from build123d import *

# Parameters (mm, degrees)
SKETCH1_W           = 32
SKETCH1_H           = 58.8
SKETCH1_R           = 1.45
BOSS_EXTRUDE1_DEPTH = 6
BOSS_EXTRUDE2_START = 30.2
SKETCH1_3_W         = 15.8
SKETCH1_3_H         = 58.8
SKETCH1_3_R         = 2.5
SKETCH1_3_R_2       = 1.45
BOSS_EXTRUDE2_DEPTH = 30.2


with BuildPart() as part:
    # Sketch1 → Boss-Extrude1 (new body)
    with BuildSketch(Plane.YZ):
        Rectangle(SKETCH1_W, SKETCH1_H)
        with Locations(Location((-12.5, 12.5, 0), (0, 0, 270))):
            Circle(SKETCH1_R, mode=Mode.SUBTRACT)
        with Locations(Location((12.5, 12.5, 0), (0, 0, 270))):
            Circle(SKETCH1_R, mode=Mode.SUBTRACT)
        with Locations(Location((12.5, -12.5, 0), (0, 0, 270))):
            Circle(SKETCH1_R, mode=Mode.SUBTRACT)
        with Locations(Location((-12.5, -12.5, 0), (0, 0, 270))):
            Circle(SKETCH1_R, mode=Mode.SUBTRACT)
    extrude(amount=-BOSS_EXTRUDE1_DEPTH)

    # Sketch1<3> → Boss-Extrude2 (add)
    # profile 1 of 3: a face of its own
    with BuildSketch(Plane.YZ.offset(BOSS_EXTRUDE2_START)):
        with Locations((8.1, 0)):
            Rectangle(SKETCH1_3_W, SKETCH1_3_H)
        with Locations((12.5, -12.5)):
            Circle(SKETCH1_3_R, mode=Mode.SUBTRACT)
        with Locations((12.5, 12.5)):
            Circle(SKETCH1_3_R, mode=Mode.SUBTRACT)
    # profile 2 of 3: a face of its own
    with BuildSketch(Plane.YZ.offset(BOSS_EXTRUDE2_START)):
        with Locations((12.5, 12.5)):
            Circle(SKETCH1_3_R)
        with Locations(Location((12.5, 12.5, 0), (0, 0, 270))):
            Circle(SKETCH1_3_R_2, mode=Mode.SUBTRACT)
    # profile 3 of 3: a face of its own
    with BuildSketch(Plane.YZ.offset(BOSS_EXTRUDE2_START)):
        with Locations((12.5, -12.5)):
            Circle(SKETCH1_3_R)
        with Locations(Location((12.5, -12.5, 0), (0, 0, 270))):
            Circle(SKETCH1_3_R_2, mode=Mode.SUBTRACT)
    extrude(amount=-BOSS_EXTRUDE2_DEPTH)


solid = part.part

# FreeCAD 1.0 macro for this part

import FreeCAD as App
import Part
import Sketcher

V = App.Vector
Q = App.Units.Quantity


def add_polygon(sketch, points):
    """Adds a closed chain of lines whose ends are joined by coincident constraints."""
    first, n = sketch.GeometryCount, len(points)
    for a, b in zip(points, points[1:] + points[:1]):
        sketch.addGeometry(Part.LineSegment(App.Vector(*a, 0), App.Vector(*b, 0)), False)
    for i in range(n):
        sketch.addConstraint(Sketcher.Constraint("Coincident", first + i, 2, first + (i + 1) % n, 1))

doc = App.newDocument("Part")
body = doc.addObject("PartDesign::Body", "Body")

# Sketch on YZ plane
sketch1 = body.newObject("Sketcher::SketchObject", "Sketch")
sketch1.AttachmentSupport = (doc.getObject("YZ_Plane"), [""])
sketch1.MapMode = "FlatFace"
add_polygon(sketch1, [(-16, 29.4), (-16, -29.4), (16, -29.4), (16, 29.4)])  # lines 0-3
sketch1.addGeometry(Part.Circle(V(-12.5, -12.5, 0), V(0, 0, 1), 1.4), False)  # 4
sketch1.addGeometry(Part.Circle(V(12.5, -12.5, 0), V(0, 0, 1), 1.4), False)  # 5
sketch1.addGeometry(Part.Circle(V(-12.5, 12.5, 0), V(0, 0, 1), 1.4), False)  # 6
sketch1.addGeometry(Part.Circle(V(12.5, 12.5, 0), V(0, 0, 1), 1.4), False)  # 7
sketch1.addConstraint([
    Sketcher.Constraint("Vertical", 0),
    Sketcher.Constraint("Horizontal", 1),
    Sketcher.Constraint("Vertical", 2),
    Sketcher.Constraint("Horizontal", 3),
    Sketcher.Constraint("Equal", 4, 5),
    Sketcher.Constraint("Equal", 5, 6),
    Sketcher.Constraint("Equal", 6, 7),
    Sketcher.Constraint("Symmetric", 5, 3, 6, 3, -1, 1),
    Sketcher.Constraint("Symmetric", 4, 3, 7, 3, -1, 1),
    Sketcher.Constraint("Symmetric", 0, 2, 2, 2, -1, 1),
    Sketcher.Constraint("Symmetric", 4, 3, 5, 3, -2),
    Sketcher.Constraint("Diameter", 4, Q("2.9 mm")),
    Sketcher.Constraint("DistanceX", 1, 1, 1, 2, Q("32 mm")),
    Sketcher.Constraint("DistanceY", 0, 2, 0, 1, Q("58.8 mm")),
    Sketcher.Constraint("DistanceX", 4, 3, 5, 3, Q("25 mm")),
    Sketcher.Constraint("DistanceY", 4, 3, 6, 3, Q("25 mm")),
])
pad1 = body.newObject("PartDesign::Pad", "Pad")
pad1.Profile = sketch1
pad1.Length = 6
pad1.Reversed = True

# Sketch on YZ plane
sketch2 = body.newObject("Sketcher::SketchObject", "Sketch001")
sketch2.AttachmentSupport = (doc.getObject("YZ_Plane"), [""])
sketch2.MapMode = "FlatFace"
sketch2.AttachmentOffset = App.Placement(V(0, 0, 30.2), App.Rotation())
add_polygon(sketch2, [(0.2, 29.4), (0.2, -29.4), (16, -29.4), (16, 29.4)])  # lines 0-3
sketch2.addGeometry(Part.Circle(V(12.5, -12.5, 0), V(0, 0, 1), 1.4), False)  # 4
sketch2.addGeometry(Part.Circle(V(12.5, 12.5, 0), V(0, 0, 1), 1.4), False)  # 5
sketch2.addConstraint([
    Sketcher.Constraint("Vertical", 0),
    Sketcher.Constraint("Horizontal", 1),
    Sketcher.Constraint("Vertical", 2),
    Sketcher.Constraint("Horizontal", 3),
    Sketcher.Constraint("Equal", 4, 5),
    Sketcher.Constraint("Symmetric", 4, 3, 5, 3, -1),
    Sketcher.Constraint("Diameter", 4, Q("2.9 mm")),
    Sketcher.Constraint("DistanceX", 1, 1, 1, 2, Q("15.8 mm")),
    Sketcher.Constraint("DistanceY", 0, 2, 0, 1, Q("58.8 mm")),
    Sketcher.Constraint("DistanceX", -1, 1, 1, 2, Q("16 mm")),
    Sketcher.Constraint("DistanceY", 4, 3, 5, 3, Q("25 mm")),
    Sketcher.Constraint("DistanceX", -1, 1, 4, 3, Q("12.5 mm")),
    Sketcher.Constraint("DistanceY", 0, 2, -1, 1, Q("29.4 mm")),
])
pad2 = body.newObject("PartDesign::Pad", "Pad001")
pad2.Profile = sketch2
pad2.Length = 30.2
pad2.Reversed = True

doc.recompute()
